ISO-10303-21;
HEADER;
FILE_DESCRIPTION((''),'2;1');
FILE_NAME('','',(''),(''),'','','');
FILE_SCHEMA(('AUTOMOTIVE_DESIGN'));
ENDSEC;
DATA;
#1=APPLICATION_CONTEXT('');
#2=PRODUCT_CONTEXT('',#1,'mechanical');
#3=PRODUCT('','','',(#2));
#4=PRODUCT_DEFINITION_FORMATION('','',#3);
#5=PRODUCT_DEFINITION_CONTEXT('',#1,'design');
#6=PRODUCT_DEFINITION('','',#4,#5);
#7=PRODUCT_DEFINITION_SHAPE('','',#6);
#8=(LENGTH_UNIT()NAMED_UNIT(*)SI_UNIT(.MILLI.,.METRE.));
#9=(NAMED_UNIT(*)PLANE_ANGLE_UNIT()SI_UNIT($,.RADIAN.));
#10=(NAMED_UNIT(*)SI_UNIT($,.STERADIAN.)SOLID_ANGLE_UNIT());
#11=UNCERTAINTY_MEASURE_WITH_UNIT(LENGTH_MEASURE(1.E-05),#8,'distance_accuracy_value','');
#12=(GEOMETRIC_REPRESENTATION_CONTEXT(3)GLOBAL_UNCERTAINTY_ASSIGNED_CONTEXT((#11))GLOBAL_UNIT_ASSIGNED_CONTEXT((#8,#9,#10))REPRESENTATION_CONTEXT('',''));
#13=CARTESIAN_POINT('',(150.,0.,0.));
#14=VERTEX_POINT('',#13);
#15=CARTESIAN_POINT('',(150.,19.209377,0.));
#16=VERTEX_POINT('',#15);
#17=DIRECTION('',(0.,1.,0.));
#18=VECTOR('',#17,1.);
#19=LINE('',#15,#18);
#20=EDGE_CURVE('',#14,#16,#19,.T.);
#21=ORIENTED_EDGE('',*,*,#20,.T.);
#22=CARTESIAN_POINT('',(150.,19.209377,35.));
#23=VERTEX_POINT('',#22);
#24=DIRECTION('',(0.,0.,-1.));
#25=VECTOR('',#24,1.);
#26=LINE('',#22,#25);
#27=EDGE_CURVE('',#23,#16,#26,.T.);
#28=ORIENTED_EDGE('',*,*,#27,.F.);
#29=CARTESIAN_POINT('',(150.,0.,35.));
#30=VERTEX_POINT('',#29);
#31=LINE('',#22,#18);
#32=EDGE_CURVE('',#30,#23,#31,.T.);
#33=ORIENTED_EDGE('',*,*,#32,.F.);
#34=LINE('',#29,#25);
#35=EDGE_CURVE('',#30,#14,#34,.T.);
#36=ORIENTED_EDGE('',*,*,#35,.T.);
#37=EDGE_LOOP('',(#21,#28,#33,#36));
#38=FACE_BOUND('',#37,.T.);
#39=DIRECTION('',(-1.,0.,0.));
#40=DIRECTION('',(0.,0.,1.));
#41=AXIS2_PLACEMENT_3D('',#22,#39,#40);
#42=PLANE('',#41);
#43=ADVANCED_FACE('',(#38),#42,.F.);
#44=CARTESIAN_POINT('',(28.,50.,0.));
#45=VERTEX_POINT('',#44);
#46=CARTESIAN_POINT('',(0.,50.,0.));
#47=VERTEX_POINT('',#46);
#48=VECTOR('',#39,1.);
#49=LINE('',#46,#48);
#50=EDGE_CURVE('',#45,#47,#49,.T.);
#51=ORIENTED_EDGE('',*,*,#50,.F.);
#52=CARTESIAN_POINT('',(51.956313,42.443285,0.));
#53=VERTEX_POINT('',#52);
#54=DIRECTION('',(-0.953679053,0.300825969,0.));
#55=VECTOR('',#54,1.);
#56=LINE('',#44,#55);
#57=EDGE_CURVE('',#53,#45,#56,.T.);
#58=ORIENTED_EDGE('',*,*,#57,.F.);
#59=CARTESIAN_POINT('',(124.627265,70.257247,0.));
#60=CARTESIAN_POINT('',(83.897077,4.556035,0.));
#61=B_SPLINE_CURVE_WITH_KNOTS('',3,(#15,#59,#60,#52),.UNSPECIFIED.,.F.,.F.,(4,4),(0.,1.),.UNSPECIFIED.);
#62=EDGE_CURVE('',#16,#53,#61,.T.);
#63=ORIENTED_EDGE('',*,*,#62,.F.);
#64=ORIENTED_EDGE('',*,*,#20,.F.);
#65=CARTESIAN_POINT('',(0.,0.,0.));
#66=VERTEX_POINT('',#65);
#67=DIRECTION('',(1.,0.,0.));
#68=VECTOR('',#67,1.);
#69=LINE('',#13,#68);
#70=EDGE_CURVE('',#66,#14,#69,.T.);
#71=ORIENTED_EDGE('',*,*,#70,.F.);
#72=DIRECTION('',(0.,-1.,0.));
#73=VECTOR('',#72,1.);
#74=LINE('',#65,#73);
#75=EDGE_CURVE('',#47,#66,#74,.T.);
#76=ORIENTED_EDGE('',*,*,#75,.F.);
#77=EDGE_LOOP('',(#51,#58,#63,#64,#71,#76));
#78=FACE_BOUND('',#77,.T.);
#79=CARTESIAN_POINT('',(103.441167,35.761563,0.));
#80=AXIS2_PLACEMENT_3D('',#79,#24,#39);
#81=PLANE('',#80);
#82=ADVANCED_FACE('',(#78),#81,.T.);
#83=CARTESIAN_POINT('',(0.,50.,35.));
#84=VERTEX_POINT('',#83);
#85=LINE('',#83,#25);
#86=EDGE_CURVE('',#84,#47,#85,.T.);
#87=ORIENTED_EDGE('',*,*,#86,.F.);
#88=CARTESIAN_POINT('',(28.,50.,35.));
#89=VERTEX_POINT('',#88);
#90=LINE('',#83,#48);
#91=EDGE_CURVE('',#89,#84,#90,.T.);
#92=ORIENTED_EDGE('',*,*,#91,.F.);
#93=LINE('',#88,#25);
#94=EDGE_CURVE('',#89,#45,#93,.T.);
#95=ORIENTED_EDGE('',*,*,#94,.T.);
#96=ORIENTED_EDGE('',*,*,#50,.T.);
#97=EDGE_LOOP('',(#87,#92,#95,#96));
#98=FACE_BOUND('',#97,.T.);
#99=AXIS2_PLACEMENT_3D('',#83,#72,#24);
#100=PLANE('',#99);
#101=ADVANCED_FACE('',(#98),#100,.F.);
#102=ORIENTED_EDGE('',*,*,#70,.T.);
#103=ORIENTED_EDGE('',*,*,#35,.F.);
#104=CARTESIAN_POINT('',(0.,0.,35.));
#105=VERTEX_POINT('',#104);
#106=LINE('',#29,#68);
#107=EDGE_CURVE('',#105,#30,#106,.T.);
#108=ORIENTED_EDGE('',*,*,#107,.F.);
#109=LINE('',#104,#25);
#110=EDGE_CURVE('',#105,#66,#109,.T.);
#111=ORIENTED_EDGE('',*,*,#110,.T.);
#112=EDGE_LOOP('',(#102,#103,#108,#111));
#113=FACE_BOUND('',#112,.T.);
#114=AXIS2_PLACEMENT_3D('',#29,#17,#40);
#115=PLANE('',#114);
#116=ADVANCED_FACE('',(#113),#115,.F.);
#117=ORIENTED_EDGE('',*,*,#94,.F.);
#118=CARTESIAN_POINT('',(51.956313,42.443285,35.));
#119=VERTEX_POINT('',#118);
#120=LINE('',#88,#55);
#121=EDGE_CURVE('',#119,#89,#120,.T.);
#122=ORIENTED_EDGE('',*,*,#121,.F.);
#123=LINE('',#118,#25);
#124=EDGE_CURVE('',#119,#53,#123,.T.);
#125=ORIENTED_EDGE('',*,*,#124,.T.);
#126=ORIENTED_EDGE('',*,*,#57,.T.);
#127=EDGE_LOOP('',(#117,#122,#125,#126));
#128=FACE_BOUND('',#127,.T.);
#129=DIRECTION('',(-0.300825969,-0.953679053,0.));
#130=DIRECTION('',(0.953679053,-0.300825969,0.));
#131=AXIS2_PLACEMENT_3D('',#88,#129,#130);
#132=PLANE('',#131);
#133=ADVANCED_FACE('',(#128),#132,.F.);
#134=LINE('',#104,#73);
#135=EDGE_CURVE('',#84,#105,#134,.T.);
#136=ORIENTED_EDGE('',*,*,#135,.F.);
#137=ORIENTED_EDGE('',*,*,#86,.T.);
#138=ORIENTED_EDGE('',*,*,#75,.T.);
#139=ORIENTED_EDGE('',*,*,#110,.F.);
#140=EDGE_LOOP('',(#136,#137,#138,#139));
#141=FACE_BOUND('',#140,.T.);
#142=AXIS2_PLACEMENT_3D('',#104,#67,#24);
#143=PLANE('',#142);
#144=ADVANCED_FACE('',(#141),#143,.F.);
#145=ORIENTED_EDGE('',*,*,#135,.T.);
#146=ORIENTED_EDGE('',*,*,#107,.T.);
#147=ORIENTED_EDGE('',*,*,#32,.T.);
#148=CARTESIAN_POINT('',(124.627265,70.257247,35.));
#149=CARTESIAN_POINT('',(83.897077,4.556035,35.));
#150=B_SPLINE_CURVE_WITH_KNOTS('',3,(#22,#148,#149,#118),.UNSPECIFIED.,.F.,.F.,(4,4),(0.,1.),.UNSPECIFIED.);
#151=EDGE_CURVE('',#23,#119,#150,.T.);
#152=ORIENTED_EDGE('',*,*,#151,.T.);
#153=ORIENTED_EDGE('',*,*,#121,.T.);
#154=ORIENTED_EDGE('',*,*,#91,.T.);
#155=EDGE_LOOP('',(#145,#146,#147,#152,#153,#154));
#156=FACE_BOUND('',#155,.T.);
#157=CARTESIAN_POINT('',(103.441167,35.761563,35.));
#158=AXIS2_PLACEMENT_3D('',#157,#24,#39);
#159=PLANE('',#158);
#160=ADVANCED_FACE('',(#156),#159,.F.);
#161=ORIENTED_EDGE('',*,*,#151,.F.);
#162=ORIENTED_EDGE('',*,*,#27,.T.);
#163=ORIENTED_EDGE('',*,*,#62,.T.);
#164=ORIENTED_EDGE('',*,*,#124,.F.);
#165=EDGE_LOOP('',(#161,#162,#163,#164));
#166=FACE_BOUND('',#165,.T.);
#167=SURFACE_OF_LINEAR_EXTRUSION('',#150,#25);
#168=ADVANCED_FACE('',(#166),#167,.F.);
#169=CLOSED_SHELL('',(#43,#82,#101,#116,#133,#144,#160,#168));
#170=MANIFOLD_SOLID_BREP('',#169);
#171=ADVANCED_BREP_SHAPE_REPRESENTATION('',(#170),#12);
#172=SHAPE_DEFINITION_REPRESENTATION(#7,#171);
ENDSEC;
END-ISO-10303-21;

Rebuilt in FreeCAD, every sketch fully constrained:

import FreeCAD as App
import Part
import Sketcher
from FreeCAD import Vector
Q = App.Units.Quantity

doc = App.newDocument("Part")
body = doc.addObject("PartDesign::Body", "Body")

# Sketch on XY plane
sketch1 = body.newObject("Sketcher::SketchObject", "Sketch")
sketch1.AttachmentSupport = (doc.getObject("XY_Plane"), [""])
sketch1.MapMode = "FlatFace"
sketch1.addGeometry([
    Part.LineSegment(Vector(0, 50, 0), Vector(0, 0, 0)),  # 0
    Part.LineSegment(Vector(0, 0, 0), Vector(150, 0, 0)),  # 1
    Part.LineSegment(Vector(150, 0, 0), Vector(150, 19.209377, 0)),  # 2
    Part.BSplineCurve([Vector(51.956313, 42.443285, 0), Vector(83.897077, 4.556035, 0), Vector(124.627265, 70.257247, 0), Vector(150, 19.209377, 0)], [4, 4], [0, 1], False, 3, [1, 1, 1, 1], False),  # 3
    Part.LineSegment(Vector(51.956313, 42.443285, 0), Vector(28, 50, 0)),  # 4
    Part.LineSegment(Vector(28, 50, 0), Vector(0, 50, 0)),  # 5
], False)
sketch1.addConstraint([
    Sketcher.Constraint("Block", 3),
    Sketcher.Constraint("Coincident", 0, 2, 1, 1),
    Sketcher.Constraint("Coincident", 1, 2, 2, 1),
    Sketcher.Constraint("Coincident", 2, 2, 3, 2),
    Sketcher.Constraint("Coincident", 3, 1, 4, 1),
    Sketcher.Constraint("Coincident", 4, 2, 5, 1),
    Sketcher.Constraint("Coincident", 5, 2, 0, 1),
    Sketcher.Constraint("Vertical", 0),
    Sketcher.Constraint("Horizontal", 1),
    Sketcher.Constraint("Vertical", 2),
    Sketcher.Constraint("Horizontal", 5),
    Sketcher.Constraint("Coincident", 0, 2, -1, 1),
    Sketcher.Constraint("DistanceX", 5, 2, 5, 1, Q("28 mm")),
    Sketcher.Constraint("DistanceY", 0, 2, 0, 1, Q("50 mm")),
])
pad1 = body.newObject("PartDesign::Pad", "Pad")
pad1.Profile = sketch1
pad1.Length = 35

doc.recompute()
